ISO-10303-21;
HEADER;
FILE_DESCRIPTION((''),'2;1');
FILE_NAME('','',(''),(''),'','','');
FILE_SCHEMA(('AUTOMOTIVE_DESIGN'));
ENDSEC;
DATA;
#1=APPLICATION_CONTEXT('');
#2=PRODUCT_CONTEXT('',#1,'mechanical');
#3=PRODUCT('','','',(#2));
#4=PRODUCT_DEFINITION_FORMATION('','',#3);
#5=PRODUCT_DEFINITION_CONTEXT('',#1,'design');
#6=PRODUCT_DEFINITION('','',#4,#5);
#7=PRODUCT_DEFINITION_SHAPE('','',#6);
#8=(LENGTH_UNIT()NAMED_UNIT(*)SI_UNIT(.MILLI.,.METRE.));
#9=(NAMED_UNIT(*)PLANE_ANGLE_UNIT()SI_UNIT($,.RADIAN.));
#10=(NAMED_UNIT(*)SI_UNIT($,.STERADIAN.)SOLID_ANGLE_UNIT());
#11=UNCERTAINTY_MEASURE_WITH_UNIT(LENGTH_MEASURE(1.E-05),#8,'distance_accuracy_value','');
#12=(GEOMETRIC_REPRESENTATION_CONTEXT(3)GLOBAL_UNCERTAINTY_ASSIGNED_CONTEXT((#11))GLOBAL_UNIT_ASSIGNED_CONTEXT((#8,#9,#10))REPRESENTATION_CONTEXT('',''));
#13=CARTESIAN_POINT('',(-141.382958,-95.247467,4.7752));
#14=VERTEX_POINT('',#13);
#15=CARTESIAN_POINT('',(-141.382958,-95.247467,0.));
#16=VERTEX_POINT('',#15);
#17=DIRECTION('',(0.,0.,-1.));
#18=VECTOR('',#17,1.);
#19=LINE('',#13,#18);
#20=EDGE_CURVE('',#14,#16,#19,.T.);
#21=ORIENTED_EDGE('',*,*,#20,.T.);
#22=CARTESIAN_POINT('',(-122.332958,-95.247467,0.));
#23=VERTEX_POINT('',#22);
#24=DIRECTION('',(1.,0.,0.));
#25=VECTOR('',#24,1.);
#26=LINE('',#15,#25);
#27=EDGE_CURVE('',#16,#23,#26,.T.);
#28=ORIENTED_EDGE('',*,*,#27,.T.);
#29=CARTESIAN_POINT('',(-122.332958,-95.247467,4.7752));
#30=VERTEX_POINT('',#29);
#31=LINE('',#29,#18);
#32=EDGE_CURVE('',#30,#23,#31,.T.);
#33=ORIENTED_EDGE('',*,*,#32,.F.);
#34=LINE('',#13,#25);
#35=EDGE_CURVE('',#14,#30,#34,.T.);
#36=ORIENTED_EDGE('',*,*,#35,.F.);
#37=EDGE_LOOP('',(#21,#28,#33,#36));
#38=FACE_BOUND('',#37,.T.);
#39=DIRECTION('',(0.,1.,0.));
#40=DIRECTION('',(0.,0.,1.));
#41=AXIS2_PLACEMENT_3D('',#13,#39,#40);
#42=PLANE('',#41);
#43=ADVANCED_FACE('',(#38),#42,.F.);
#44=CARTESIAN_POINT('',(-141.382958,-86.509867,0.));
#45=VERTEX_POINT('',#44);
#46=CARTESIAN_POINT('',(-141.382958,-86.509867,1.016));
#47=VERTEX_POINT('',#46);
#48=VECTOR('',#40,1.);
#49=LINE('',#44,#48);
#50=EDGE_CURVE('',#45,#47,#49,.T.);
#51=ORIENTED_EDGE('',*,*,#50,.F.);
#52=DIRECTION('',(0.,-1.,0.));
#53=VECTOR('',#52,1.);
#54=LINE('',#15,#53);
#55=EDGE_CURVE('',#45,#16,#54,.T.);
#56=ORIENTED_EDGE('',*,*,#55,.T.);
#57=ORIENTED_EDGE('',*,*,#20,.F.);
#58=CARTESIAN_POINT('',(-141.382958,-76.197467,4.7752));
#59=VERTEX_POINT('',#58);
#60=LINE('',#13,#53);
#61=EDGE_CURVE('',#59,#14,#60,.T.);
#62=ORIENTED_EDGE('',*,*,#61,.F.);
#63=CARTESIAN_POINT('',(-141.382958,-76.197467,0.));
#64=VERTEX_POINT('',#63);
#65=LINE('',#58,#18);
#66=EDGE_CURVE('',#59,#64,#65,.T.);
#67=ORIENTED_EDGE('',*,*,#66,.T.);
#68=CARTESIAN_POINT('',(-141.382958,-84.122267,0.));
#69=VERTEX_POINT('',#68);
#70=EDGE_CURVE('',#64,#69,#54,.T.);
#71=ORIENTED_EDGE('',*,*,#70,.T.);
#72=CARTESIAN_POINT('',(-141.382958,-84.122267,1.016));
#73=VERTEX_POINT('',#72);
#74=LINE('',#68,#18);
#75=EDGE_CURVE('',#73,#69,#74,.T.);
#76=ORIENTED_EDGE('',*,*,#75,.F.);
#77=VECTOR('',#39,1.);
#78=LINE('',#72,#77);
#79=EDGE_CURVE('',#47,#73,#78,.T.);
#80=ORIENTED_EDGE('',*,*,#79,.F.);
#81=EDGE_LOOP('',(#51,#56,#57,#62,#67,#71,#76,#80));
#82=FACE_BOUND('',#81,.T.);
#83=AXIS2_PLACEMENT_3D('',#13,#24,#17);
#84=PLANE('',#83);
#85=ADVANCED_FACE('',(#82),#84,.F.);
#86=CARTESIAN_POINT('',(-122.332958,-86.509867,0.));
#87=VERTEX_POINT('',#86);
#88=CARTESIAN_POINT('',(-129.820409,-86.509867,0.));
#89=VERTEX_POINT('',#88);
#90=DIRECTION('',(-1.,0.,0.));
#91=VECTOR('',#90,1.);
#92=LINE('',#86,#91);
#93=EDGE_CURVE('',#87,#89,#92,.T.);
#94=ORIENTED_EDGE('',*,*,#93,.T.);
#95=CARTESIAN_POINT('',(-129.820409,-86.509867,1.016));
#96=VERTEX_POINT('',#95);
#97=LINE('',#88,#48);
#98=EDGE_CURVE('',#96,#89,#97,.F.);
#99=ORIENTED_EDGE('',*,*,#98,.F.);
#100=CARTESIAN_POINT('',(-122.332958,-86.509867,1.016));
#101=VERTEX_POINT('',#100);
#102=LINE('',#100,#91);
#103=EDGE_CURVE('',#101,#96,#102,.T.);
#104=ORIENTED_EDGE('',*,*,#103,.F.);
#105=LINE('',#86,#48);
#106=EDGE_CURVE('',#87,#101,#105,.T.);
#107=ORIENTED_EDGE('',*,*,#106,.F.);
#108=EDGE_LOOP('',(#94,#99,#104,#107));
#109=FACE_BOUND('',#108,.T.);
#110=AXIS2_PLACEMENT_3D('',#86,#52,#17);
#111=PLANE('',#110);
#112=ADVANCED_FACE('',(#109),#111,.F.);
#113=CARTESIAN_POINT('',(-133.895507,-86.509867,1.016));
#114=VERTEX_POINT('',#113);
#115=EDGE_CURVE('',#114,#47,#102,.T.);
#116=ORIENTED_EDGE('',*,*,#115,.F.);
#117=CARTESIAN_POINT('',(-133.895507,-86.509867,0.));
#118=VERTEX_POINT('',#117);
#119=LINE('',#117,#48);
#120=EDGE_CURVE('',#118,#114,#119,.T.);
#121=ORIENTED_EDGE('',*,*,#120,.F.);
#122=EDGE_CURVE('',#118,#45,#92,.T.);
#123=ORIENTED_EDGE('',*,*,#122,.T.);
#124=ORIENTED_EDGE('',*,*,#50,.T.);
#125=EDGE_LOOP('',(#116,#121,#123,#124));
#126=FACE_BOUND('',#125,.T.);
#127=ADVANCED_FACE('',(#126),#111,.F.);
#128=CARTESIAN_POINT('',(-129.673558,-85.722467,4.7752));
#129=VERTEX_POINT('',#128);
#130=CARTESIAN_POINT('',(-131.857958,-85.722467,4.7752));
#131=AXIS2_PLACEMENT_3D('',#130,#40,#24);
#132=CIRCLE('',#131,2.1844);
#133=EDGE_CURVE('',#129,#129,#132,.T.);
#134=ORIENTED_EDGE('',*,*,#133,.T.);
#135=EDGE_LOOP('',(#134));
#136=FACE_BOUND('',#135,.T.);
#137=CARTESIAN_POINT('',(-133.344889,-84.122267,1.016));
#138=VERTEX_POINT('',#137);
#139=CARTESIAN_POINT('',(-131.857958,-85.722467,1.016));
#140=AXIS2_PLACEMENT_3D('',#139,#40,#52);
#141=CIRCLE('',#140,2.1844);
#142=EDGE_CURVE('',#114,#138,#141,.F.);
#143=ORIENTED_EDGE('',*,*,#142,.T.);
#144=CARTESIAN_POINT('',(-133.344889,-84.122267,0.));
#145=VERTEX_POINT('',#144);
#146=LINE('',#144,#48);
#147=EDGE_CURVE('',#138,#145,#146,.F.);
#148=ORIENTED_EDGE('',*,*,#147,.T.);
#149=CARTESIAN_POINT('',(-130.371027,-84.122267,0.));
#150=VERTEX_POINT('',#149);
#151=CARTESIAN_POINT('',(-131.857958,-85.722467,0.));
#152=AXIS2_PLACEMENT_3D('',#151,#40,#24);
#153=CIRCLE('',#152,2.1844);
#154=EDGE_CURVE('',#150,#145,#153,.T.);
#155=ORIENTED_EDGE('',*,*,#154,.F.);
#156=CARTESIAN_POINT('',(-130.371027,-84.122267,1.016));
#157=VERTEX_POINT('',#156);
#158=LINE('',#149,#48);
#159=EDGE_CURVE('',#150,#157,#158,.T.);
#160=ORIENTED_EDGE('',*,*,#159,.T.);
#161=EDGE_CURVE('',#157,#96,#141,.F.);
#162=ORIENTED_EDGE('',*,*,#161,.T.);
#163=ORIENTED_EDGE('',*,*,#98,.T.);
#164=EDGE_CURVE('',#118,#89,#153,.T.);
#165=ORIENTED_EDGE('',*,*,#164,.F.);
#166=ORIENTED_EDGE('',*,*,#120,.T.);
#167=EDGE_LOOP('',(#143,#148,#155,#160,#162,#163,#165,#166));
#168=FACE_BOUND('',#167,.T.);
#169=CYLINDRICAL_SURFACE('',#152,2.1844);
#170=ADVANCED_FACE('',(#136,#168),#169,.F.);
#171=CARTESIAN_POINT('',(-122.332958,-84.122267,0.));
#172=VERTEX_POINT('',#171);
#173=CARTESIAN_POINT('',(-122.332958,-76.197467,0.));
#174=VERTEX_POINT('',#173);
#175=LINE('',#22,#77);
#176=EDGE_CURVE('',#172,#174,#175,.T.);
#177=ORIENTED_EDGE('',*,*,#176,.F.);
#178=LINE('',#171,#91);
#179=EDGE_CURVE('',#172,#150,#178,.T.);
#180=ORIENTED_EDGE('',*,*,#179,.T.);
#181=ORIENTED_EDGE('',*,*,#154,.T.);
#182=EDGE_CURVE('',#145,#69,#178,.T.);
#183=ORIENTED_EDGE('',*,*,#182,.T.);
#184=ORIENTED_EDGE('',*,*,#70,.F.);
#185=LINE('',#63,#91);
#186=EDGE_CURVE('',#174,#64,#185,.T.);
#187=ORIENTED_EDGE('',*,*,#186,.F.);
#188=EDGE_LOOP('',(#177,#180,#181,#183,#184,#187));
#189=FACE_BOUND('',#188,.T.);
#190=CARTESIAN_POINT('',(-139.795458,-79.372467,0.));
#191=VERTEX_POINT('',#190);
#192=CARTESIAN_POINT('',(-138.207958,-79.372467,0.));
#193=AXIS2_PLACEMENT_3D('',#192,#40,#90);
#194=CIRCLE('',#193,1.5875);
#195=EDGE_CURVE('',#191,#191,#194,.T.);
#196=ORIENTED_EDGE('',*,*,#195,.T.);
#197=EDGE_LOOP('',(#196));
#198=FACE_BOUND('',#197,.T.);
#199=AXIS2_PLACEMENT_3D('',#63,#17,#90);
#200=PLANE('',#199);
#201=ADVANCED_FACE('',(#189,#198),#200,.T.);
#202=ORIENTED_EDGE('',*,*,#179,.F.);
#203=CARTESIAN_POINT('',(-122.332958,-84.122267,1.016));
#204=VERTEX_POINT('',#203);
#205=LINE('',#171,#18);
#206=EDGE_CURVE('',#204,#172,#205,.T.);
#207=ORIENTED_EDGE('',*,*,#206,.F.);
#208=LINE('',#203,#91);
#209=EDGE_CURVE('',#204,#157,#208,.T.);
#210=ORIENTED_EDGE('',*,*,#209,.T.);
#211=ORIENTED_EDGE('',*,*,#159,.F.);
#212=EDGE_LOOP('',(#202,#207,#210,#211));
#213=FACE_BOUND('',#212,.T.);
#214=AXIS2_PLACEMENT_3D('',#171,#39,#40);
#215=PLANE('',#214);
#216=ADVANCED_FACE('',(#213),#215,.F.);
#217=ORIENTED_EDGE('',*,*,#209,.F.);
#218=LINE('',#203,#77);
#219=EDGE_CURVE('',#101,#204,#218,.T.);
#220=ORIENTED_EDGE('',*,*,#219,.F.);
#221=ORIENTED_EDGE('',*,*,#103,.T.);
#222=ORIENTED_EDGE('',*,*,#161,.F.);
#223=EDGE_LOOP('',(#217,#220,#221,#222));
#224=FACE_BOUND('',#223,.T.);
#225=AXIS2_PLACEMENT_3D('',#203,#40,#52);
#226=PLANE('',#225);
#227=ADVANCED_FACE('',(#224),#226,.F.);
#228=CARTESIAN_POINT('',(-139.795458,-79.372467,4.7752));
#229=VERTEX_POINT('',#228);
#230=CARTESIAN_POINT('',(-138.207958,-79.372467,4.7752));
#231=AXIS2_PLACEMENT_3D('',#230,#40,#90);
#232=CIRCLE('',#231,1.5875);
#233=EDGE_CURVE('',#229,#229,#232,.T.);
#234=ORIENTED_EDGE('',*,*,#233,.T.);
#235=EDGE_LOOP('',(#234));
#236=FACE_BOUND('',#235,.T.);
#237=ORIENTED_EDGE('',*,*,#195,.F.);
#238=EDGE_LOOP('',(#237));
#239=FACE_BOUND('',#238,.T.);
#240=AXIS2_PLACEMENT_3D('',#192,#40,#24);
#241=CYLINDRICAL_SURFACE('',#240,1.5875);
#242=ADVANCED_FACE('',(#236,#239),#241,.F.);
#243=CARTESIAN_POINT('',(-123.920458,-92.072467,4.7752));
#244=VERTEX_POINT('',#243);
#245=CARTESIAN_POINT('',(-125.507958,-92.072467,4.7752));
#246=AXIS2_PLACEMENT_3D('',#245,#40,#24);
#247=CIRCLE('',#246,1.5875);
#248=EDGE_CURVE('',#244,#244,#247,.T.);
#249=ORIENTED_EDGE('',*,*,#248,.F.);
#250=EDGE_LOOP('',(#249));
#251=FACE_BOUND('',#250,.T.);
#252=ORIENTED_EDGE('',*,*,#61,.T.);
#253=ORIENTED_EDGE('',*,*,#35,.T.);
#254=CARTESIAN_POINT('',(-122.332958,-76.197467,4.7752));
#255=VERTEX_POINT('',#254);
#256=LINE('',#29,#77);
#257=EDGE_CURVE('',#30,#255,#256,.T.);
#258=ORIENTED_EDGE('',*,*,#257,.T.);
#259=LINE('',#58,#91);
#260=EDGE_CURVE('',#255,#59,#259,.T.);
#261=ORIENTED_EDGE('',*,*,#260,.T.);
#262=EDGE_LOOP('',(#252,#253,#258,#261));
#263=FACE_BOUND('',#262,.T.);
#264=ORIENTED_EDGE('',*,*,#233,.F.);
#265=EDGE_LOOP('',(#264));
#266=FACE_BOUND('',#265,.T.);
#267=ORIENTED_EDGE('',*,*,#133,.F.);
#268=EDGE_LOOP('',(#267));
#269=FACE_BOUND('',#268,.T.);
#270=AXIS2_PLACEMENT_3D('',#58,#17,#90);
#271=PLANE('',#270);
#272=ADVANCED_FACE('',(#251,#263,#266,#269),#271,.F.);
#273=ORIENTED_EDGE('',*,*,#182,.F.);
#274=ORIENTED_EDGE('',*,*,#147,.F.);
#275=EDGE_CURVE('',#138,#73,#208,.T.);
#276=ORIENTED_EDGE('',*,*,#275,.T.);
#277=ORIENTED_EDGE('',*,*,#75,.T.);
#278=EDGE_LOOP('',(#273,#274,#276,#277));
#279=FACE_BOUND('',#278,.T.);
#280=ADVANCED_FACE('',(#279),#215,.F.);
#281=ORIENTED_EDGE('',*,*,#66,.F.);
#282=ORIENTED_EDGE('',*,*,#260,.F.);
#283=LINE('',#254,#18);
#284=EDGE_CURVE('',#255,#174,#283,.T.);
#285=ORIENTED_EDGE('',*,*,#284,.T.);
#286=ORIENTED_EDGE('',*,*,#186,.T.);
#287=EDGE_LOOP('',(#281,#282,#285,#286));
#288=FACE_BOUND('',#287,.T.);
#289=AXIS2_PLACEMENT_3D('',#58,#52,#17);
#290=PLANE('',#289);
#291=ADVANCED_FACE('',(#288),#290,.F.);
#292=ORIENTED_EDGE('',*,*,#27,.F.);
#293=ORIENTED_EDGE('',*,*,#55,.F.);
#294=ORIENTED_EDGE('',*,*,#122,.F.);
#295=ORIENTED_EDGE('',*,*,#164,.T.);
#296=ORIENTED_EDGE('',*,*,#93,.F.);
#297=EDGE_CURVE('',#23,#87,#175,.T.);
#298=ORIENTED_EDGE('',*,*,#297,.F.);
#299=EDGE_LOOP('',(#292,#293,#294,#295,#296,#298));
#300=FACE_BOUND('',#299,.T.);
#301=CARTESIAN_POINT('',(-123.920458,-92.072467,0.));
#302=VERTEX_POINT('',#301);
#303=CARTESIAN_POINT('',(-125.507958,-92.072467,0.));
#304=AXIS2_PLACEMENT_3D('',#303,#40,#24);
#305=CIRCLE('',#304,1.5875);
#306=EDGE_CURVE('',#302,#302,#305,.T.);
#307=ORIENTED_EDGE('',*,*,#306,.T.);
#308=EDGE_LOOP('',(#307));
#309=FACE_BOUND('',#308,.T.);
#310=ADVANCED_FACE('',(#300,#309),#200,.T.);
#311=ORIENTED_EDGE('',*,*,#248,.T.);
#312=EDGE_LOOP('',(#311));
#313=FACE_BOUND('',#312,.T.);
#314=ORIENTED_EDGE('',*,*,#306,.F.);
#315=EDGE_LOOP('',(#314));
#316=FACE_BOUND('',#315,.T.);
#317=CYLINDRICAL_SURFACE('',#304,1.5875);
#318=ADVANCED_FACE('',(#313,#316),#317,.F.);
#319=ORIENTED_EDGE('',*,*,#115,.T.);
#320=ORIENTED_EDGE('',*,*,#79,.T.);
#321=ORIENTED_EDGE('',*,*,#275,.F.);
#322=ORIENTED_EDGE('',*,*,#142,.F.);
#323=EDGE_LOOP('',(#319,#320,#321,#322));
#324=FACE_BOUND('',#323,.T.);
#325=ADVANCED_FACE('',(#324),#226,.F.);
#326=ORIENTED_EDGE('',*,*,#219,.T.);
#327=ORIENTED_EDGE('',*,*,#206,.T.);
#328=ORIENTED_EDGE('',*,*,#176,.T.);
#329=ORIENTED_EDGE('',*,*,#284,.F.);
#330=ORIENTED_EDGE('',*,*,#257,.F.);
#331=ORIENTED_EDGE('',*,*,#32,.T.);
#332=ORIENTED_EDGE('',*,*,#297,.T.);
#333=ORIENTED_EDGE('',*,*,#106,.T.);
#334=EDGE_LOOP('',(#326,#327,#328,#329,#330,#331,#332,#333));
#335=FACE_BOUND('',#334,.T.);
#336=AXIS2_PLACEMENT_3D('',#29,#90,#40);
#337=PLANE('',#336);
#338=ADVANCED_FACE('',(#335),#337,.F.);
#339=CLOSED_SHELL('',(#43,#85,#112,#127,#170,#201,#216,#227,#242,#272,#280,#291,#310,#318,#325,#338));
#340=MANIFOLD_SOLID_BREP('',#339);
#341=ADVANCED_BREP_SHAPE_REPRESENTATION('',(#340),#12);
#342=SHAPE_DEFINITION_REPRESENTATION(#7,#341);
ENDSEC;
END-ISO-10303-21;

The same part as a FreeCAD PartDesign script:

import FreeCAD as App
import Part
import Sketcher

V = App.Vector
Q = App.Units.Quantity


def add_polygon(sketch, points):
    """Adds a closed chain of lines whose ends are joined by coincident constraints."""
    first, n = sketch.GeometryCount, len(points)
    for a, b in zip(points, points[1:] + points[:1]):
        sketch.addGeometry(Part.LineSegment(App.Vector(*a, 0), App.Vector(*b, 0)), False)
    for i in range(n):
        sketch.addConstraint(Sketcher.Constraint("Coincident", first + i, 2, first + (i + 1) % n, 1))

doc = App.newDocument("Part")
body = doc.addObject("PartDesign::Body", "Body")

# Sketch on XY plane
sketch1 = body.newObject("Sketcher::SketchObject", "Sketch")
sketch1.AttachmentSupport = (doc.getObject("XY_Plane"), [""])
sketch1.MapMode = "FlatFace"
add_polygon(sketch1, [(-141, -76), (-141, -95), (-122, -95), (-122, -76)])  # lines 0-3
sketch1.addConstraint(Sketcher.Constraint("Vertical", 0))
sketch1.addConstraint(Sketcher.Constraint("Horizontal", 1))
sketch1.addConstraint(Sketcher.Constraint("Vertical", 2))
sketch1.addConstraint(Sketcher.Constraint("Horizontal", 3))
sketch1.addConstraint(Sketcher.Constraint("Equal", 3, 0))
sketch1.addConstraint(Sketcher.Constraint("DistanceX", 1, 1, 1, 2, Q("0.75 in")))
sketch1.addConstraint(Sketcher.Constraint("DistanceX", 0, 2, -1, 1, 141.382958))
sketch1.addConstraint(Sketcher.Constraint("DistanceY", 0, 2, -1, 1, 95.247467))
pad1 = body.newObject("PartDesign::Pad", "Pad")
pad1.Profile = sketch1
pad1.Length = Q("0.188 in")

# Sketch on XY plane
sketch2 = body.newObject("Sketcher::SketchObject", "Sketch001")
sketch2.AttachmentSupport = (doc.getObject("XY_Plane"), [""])
sketch2.MapMode = "FlatFace"
sketch2.AttachmentOffset = App.Placement(V(0, 0, 0.188 * 25.4), App.Rotation())
sketch2.addGeometry(Part.Circle(V(-131.9, -85.7, 0), V(0, 0, 1), 2.2), False)
sketch2.addGeometry(Part.Circle(V(-125.5, -92.1, 0), V(0, 0, 1), 1.6), False)
sketch2.addGeometry(Part.Circle(V(-138.2, -79.4, 0), V(0, 0, 1), 1.6), False)
sketch2.addConstraint(Sketcher.Constraint("Equal", 1, 2))
sketch2.addConstraint(Sketcher.Constraint("Diameter", 0, Q("0.172 in")))
sketch2.addConstraint(Sketcher.Constraint("Diameter", 1, Q("0.125 in")))
sketch2.addConstraint(Sketcher.Constraint("DistanceX", 2, 3, 1, 3, Q("0.5 in")))
sketch2.addConstraint(Sketcher.Constraint("DistanceY", 1, 3, 2, 3, Q("0.5 in")))
sketch2.addConstraint(Sketcher.Constraint("DistanceX", 0, 3, 1, 3, Q("0.25 in")))
sketch2.addConstraint(Sketcher.Constraint("DistanceY", 1, 3, 0, 3, Q("0.25 in")))
sketch2.addConstraint(Sketcher.Constraint("DistanceX", 0, 3, -1, 1, 131.857958))
sketch2.addConstraint(Sketcher.Constraint("DistanceY", 0, 3, -1, 1, 85.722467))
pocket1 = body.newObject("PartDesign::Pocket", "Pocket")
pocket1.Profile = sketch2
pocket1.Type = "ThroughAll"

# Sketch on YZ plane
sketch3 = body.newObject("Sketcher::SketchObject", "Sketch002")
sketch3.AttachmentSupport = (doc.getObject("YZ_Plane"), [""])
sketch3.MapMode = "FlatFace"
sketch3.AttachmentOffset = App.Placement(V(0, 0, -141.382958), App.Rotation())
add_polygon(sketch3, [(-84.1, 0), (-86.5, 0), (-86.5, 1), (-84.1, 1)])  # lines 0-3
sketch3.addConstraint(Sketcher.Constraint("Horizontal", 0))
sketch3.addConstraint(Sketcher.Constraint("Vertical", 1))
sketch3.addConstraint(Sketcher.Constraint("Horizontal", 2))
sketch3.addConstraint(Sketcher.Constraint("Vertical", 3))
sketch3.addConstraint(Sketcher.Constraint("PointOnObject", 0, 2, -1))
sketch3.addConstraint(Sketcher.Constraint("DistanceY", 1, 1, 1, 2, Q("0.04 in")))
sketch3.addConstraint(Sketcher.Constraint("DistanceX", 0, 2, 0, 1, Q("0.094 in")))
sketch3.addConstraint(Sketcher.Constraint("DistanceX", 0, 2, -1, 1, 86.509867))
pocket2 = body.newObject("PartDesign::Pocket", "Pocket001")
pocket2.Profile = sketch3
pocket2.Type = "ThroughAll"
pocket2.Reversed = True

doc.recompute()
